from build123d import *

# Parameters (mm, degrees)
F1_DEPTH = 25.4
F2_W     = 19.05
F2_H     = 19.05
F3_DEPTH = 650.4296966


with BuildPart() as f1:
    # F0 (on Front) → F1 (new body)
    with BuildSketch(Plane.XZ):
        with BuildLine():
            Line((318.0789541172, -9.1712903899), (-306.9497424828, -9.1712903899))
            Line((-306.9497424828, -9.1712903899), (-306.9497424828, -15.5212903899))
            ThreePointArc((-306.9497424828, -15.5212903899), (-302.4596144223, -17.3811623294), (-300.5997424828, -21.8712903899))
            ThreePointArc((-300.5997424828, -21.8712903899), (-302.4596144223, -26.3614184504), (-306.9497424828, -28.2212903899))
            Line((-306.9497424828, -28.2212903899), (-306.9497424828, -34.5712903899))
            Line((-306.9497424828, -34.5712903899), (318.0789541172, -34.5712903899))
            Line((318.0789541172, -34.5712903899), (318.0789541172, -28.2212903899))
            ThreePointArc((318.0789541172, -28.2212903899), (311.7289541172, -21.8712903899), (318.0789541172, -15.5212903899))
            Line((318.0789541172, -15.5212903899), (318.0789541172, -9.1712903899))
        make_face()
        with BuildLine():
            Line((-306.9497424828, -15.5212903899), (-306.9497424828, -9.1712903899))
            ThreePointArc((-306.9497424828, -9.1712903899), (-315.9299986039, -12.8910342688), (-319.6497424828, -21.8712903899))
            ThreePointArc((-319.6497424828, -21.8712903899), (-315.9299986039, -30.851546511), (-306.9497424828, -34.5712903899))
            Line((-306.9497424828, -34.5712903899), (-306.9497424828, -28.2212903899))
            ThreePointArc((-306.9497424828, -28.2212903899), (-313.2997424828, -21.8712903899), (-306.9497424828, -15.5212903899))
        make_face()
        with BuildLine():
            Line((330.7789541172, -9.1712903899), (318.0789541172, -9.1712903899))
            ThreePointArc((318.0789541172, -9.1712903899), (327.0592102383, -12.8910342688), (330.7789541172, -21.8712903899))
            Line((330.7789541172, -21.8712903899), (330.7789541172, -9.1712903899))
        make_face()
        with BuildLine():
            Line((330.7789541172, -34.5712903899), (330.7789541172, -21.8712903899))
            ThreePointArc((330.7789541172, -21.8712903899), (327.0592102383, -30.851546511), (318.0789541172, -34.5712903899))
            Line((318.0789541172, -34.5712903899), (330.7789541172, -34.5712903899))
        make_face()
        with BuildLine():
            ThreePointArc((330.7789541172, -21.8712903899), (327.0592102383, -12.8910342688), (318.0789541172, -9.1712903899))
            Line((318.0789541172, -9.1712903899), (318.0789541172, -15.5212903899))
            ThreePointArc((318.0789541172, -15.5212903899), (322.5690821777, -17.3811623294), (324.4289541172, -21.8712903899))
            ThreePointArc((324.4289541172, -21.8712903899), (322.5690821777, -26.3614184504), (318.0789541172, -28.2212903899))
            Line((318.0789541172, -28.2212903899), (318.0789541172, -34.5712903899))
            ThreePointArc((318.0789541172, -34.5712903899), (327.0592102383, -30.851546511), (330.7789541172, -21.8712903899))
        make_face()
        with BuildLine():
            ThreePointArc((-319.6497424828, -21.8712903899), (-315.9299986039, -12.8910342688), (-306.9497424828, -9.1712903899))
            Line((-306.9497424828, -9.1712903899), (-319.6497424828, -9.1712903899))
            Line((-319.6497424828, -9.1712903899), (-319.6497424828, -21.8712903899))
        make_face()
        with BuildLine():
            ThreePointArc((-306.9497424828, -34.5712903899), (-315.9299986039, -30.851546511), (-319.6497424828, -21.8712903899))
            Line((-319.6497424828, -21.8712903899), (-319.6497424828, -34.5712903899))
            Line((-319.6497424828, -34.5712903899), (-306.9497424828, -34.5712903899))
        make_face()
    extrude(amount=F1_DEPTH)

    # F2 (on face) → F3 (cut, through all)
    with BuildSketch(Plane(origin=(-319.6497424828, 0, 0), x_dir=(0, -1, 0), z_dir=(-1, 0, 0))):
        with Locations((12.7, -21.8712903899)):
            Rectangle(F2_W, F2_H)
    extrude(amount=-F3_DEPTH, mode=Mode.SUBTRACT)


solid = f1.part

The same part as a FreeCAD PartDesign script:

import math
import FreeCAD as App
import Part
import Sketcher

V = App.Vector
Q = App.Units.Quantity


def add_polygon(sketch, points):
    """Adds a closed chain of lines whose ends are joined by coincident constraints."""
    first, n = sketch.GeometryCount, len(points)
    for a, b in zip(points, points[1:] + points[:1]):
        sketch.addGeometry(Part.LineSegment(App.Vector(*a, 0), App.Vector(*b, 0)), False)
    for i in range(n):
        sketch.addConstraint(Sketcher.Constraint("Coincident", first + i, 2, first + (i + 1) % n, 1))

doc = App.newDocument("Part")
body = doc.addObject("PartDesign::Body", "Body")

# Sketch on XZ plane
sketch1 = body.newObject("Sketcher::SketchObject", "Sketch")
sketch1.AttachmentSupport = (doc.getObject("XZ_Plane"), [""])
sketch1.MapMode = "FlatFace"
add_polygon(sketch1, [(331, -35), (331, -9), (-320, -9), (-320, -35)])  # lines 0-3
sketch1.addGeometry(Part.ArcOfCircle(Part.Circle(V(318, -22, 0), V(0, 0, 1), 6), math.radians(90), math.radians(270)), False)  # 4
sketch1.addGeometry(Part.ArcOfCircle(Part.Circle(V(318, -22, 0), V(0, 0, 1), 6), math.radians(0), math.radians(90)), False)  # 5
sketch1.addGeometry(Part.ArcOfCircle(Part.Circle(V(318, -22, 0), V(0, 0, 1), 6), math.radians(-90), math.radians(0)), False)  # 6
sketch1.addGeometry(Part.ArcOfCircle(Part.Circle(V(-307, -22, 0), V(0, 0, 1), 6), math.radians(0), math.radians(90)), False)  # 7
sketch1.addGeometry(Part.ArcOfCircle(Part.Circle(V(-307, -22, 0), V(0, 0, 1), 6), math.radians(-90), math.radians(0)), False)  # 8
sketch1.addGeometry(Part.ArcOfCircle(Part.Circle(V(-307, -22, 0), V(0, 0, 1), 6), math.radians(90), math.radians(270)), False)  # 9
sketch1.addConstraint([
    Sketcher.Constraint("Tangent", 4, 1, 5, 2),
    Sketcher.Constraint("Tangent", 5, 1, 6, 2),
    Sketcher.Constraint("Tangent", 6, 1, 4, 2),
    Sketcher.Constraint("Tangent", 7, 1, 8, 2),
    Sketcher.Constraint("Tangent", 8, 1, 9, 2),
    Sketcher.Constraint("Tangent", 9, 1, 7, 2),
    Sketcher.Constraint("Vertical", 0),
    Sketcher.Constraint("Horizontal", 1),
    Sketcher.Constraint("Vertical", 2),
    Sketcher.Constraint("Horizontal", 3),
    Sketcher.Constraint("Equal", 6, 7),
    Sketcher.Constraint("Horizontal", 6, 3, 7, 3),
    Sketcher.Constraint("Horizontal", 9, 3, 5, 1),
    Sketcher.Constraint("Horizontal", 5, 1, 7, 1),
    Sketcher.Constraint("Vertical", 6, 3, 4, 1),
    Sketcher.Constraint("Vertical", 4, 1, 6, 1),
    Sketcher.Constraint("Vertical", 9, 3, 8, 1),
    Sketcher.Constraint("Vertical", 8, 1, 9, 1),
    Sketcher.Constraint("DistanceY", 0, 1, 0, 2, Q("1 in")),
    Sketcher.Constraint("Radius", 4, Q("0.25 in")),
    Sketcher.Constraint("DistanceX", 4, 3, 0, 2, Q("0.5 in")),
    Sketcher.Constraint("DistanceY", 4, 3, 0, 2, Q("0.5 in")),
    Sketcher.Constraint("DistanceX", 1, 2, 7, 3, Q("0.5 in")),
    Sketcher.Constraint("DistanceX", 1, 2, 1, 1, Q("650.428697 mm")),
    Sketcher.Constraint("DistanceY", 4, 3, -1, 1, Q("21.87129 mm")),
    Sketcher.Constraint("DistanceX", -1, 1, 4, 3, Q("318.078954 mm")),
])
pad1 = body.newObject("PartDesign::Pad", "Pad")
pad1.Profile = sketch1
pad1.Length = Q("1 in")

# Sketch on YZ plane
sketch2 = body.newObject("Sketcher::SketchObject", "Sketch001")
sketch2.AttachmentSupport = (doc.getObject("YZ_Plane"), [""])
sketch2.MapMode = "FlatFace"
sketch2.AttachmentOffset = App.Placement(V(0, 0, -319.649742), App.Rotation())
add_polygon(sketch2, [(-3, -12), (-3, -31), (-22, -31), (-22, -12)])  # lines 0-3
sketch2.addConstraint([
    Sketcher.Constraint("Vertical", 0),
    Sketcher.Constraint("Horizontal", 1),
    Sketcher.Constraint("Vertical", 2),
    Sketcher.Constraint("Horizontal", 3),
    Sketcher.Constraint("Equal", 3, 0),
    Sketcher.Constraint("DistanceX", 1, 2, 1, 1, Q("0.75 in")),
    Sketcher.Constraint("DistanceX", 0, 2, -1, 1, Q("0.125 in")),
    Sketcher.Constraint("DistanceY", 0, 2, -1, 1, Q("31.39629 mm")),
])
pocket1 = body.newObject("PartDesign::Pocket", "Pocket")
pocket1.Profile = sketch2
pocket1.Type = "ThroughAll"
pocket1.Reversed = True

doc.recompute()
